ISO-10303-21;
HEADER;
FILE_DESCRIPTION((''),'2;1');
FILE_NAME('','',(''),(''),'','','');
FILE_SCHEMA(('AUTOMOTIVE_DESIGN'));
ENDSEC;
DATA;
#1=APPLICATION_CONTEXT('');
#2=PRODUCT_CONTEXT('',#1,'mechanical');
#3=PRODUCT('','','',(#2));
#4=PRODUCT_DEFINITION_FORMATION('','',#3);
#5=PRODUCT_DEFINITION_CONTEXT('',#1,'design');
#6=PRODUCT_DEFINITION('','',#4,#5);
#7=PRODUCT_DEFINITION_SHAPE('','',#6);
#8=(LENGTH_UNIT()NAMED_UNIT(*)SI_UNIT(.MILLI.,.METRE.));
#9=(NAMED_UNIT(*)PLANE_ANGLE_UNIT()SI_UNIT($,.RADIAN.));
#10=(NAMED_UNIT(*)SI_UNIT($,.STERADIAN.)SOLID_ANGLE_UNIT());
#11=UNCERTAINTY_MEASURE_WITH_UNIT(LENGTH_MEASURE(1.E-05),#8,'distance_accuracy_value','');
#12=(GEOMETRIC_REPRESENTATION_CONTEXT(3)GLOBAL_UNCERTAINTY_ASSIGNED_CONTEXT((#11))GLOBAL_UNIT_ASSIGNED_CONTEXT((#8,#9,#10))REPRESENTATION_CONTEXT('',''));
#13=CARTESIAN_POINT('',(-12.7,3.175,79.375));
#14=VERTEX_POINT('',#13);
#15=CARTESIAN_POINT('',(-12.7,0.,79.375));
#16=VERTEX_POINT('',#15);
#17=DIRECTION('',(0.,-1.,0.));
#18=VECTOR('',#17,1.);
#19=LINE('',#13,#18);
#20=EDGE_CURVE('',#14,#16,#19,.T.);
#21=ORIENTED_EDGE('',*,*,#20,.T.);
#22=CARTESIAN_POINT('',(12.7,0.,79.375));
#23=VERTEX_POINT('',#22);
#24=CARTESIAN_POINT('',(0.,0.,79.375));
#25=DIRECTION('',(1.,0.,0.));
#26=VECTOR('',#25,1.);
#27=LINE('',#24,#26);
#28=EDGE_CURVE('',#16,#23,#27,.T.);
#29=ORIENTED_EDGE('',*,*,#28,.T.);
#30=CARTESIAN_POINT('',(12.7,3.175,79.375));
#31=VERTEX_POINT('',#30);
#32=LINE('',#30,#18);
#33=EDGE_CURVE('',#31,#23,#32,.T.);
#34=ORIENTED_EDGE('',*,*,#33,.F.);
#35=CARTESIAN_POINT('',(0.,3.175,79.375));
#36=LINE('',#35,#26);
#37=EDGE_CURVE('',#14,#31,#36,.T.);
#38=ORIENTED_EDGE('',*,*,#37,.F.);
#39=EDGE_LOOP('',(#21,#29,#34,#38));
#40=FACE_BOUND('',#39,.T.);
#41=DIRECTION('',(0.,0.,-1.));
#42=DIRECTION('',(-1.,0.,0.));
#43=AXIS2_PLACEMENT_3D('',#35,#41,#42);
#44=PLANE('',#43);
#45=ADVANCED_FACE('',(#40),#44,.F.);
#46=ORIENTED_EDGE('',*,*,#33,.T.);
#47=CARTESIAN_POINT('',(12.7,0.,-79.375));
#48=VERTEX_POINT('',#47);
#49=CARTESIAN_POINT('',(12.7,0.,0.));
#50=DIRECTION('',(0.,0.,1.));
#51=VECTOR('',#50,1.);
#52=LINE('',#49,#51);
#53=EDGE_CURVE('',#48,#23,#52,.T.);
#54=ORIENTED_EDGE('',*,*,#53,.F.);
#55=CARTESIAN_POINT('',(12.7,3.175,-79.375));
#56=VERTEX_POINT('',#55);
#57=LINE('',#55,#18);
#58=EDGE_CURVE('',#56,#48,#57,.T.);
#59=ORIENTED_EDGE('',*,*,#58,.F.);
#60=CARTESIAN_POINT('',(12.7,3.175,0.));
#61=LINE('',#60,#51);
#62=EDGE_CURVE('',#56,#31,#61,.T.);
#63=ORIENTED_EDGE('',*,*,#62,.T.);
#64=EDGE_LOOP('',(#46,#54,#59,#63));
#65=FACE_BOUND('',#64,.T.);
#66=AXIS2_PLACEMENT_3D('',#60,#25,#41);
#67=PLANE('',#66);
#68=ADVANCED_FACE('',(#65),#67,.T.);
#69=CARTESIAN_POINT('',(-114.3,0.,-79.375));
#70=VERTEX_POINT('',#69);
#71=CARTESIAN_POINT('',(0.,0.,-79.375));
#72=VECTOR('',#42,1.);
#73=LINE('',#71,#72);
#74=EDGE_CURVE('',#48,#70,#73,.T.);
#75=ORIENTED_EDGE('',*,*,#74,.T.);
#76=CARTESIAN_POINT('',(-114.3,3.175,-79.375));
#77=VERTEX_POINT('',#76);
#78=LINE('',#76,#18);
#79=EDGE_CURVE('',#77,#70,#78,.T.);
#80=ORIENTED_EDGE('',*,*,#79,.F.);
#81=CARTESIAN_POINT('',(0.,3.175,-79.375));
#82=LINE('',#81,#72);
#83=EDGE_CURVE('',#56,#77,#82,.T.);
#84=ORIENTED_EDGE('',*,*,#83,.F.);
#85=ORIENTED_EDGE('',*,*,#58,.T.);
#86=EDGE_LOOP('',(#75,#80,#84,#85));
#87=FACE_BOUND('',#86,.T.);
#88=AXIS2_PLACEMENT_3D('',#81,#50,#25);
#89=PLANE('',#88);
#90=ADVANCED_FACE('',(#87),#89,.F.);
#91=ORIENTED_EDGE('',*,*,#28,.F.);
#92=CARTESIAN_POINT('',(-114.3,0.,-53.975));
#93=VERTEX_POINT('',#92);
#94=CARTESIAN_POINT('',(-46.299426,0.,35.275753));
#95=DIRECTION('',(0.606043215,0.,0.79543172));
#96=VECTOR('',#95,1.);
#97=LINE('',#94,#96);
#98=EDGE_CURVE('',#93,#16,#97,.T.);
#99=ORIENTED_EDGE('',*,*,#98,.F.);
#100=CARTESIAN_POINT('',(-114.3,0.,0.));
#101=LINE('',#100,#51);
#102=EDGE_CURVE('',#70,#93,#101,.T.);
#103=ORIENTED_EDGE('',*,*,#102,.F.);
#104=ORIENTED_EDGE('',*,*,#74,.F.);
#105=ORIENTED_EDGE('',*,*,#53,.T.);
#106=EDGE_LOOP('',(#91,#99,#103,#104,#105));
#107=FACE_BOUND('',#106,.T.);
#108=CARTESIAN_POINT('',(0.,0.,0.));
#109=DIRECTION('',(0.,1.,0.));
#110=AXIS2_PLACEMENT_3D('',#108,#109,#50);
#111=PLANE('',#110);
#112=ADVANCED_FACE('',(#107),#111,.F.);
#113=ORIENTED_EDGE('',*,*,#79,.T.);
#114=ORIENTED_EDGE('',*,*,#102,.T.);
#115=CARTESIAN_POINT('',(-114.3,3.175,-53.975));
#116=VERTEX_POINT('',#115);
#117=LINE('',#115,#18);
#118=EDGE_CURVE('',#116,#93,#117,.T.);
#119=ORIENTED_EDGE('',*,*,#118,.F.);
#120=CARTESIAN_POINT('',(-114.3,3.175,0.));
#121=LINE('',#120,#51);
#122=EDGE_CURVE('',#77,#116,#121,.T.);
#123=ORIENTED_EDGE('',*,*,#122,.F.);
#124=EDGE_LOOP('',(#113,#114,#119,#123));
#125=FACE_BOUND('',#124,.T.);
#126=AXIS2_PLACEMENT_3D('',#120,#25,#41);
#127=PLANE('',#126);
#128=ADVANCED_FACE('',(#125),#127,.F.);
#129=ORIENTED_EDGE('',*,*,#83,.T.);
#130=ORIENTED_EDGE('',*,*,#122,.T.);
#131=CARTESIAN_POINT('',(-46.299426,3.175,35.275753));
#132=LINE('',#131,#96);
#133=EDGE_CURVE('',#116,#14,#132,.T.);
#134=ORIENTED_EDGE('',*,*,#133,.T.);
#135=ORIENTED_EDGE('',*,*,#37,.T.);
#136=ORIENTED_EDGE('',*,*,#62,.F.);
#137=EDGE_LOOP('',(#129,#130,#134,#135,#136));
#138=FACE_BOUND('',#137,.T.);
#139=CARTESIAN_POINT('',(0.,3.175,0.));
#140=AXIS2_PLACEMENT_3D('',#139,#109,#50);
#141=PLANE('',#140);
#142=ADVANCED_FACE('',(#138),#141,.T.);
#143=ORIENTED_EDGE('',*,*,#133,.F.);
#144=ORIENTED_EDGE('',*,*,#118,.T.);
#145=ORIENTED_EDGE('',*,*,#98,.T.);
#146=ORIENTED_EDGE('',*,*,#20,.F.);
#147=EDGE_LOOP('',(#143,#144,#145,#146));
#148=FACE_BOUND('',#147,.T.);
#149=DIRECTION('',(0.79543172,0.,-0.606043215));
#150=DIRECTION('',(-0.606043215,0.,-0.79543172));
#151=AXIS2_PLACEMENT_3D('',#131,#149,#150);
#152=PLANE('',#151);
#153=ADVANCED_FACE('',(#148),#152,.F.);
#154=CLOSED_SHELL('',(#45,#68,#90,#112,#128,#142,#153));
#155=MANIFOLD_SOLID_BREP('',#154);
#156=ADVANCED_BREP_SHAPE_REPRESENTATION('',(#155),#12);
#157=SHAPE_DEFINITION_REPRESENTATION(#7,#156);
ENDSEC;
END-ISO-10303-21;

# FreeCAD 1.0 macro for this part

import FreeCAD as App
import Part
import Sketcher

V = App.Vector
Q = App.Units.Quantity


def add_polygon(sketch, points):
    """Adds a closed chain of lines whose ends are joined by coincident constraints."""
    first, n = sketch.GeometryCount, len(points)
    for a, b in zip(points, points[1:] + points[:1]):
        sketch.addGeometry(Part.LineSegment(App.Vector(*a, 0), App.Vector(*b, 0)), False)
    for i in range(n):
        sketch.addConstraint(Sketcher.Constraint("Coincident", first + i, 2, first + (i + 1) % n, 1))

doc = App.newDocument("Part")
body = doc.addObject("PartDesign::Body", "Body")

# Sketch on XZ plane
sketch1 = body.newObject("Sketcher::SketchObject", "Sketch")
sketch1.AttachmentSupport = (doc.getObject("XZ_Plane"), [""])
sketch1.MapMode = "FlatFace"
add_polygon(sketch1, [(-114, -79), (-114, -54), (-13, 79), (13, 79), (13, -79)])  # lines 0-4
sketch1.addConstraint(Sketcher.Constraint("Vertical", 0))
sketch1.addConstraint(Sketcher.Constraint("Horizontal", 2))
sketch1.addConstraint(Sketcher.Constraint("Vertical", 3))
sketch1.addConstraint(Sketcher.Constraint("Horizontal", 4))
sketch1.addConstraint(Sketcher.Constraint("Symmetric", 1, 2, 3, 2, -1, 1))
sketch1.addConstraint(Sketcher.Constraint("Equal", 2, 0))
sketch1.addConstraint(Sketcher.Constraint("DistanceX", 2, 1, 2, 2, Q("1 in")))
sketch1.addConstraint(Sketcher.Constraint("DistanceX", 4, 2, 4, 1, Q("5 in")))
sketch1.addConstraint(Sketcher.Constraint("DistanceY", 3, 2, 3, 1, Q("6.25 in")))
pad1 = body.newObject("PartDesign::Pad", "Pad")
pad1.Profile = sketch1
pad1.Length = Q("0.125 in")
pad1.Reversed = True

doc.recompute()
